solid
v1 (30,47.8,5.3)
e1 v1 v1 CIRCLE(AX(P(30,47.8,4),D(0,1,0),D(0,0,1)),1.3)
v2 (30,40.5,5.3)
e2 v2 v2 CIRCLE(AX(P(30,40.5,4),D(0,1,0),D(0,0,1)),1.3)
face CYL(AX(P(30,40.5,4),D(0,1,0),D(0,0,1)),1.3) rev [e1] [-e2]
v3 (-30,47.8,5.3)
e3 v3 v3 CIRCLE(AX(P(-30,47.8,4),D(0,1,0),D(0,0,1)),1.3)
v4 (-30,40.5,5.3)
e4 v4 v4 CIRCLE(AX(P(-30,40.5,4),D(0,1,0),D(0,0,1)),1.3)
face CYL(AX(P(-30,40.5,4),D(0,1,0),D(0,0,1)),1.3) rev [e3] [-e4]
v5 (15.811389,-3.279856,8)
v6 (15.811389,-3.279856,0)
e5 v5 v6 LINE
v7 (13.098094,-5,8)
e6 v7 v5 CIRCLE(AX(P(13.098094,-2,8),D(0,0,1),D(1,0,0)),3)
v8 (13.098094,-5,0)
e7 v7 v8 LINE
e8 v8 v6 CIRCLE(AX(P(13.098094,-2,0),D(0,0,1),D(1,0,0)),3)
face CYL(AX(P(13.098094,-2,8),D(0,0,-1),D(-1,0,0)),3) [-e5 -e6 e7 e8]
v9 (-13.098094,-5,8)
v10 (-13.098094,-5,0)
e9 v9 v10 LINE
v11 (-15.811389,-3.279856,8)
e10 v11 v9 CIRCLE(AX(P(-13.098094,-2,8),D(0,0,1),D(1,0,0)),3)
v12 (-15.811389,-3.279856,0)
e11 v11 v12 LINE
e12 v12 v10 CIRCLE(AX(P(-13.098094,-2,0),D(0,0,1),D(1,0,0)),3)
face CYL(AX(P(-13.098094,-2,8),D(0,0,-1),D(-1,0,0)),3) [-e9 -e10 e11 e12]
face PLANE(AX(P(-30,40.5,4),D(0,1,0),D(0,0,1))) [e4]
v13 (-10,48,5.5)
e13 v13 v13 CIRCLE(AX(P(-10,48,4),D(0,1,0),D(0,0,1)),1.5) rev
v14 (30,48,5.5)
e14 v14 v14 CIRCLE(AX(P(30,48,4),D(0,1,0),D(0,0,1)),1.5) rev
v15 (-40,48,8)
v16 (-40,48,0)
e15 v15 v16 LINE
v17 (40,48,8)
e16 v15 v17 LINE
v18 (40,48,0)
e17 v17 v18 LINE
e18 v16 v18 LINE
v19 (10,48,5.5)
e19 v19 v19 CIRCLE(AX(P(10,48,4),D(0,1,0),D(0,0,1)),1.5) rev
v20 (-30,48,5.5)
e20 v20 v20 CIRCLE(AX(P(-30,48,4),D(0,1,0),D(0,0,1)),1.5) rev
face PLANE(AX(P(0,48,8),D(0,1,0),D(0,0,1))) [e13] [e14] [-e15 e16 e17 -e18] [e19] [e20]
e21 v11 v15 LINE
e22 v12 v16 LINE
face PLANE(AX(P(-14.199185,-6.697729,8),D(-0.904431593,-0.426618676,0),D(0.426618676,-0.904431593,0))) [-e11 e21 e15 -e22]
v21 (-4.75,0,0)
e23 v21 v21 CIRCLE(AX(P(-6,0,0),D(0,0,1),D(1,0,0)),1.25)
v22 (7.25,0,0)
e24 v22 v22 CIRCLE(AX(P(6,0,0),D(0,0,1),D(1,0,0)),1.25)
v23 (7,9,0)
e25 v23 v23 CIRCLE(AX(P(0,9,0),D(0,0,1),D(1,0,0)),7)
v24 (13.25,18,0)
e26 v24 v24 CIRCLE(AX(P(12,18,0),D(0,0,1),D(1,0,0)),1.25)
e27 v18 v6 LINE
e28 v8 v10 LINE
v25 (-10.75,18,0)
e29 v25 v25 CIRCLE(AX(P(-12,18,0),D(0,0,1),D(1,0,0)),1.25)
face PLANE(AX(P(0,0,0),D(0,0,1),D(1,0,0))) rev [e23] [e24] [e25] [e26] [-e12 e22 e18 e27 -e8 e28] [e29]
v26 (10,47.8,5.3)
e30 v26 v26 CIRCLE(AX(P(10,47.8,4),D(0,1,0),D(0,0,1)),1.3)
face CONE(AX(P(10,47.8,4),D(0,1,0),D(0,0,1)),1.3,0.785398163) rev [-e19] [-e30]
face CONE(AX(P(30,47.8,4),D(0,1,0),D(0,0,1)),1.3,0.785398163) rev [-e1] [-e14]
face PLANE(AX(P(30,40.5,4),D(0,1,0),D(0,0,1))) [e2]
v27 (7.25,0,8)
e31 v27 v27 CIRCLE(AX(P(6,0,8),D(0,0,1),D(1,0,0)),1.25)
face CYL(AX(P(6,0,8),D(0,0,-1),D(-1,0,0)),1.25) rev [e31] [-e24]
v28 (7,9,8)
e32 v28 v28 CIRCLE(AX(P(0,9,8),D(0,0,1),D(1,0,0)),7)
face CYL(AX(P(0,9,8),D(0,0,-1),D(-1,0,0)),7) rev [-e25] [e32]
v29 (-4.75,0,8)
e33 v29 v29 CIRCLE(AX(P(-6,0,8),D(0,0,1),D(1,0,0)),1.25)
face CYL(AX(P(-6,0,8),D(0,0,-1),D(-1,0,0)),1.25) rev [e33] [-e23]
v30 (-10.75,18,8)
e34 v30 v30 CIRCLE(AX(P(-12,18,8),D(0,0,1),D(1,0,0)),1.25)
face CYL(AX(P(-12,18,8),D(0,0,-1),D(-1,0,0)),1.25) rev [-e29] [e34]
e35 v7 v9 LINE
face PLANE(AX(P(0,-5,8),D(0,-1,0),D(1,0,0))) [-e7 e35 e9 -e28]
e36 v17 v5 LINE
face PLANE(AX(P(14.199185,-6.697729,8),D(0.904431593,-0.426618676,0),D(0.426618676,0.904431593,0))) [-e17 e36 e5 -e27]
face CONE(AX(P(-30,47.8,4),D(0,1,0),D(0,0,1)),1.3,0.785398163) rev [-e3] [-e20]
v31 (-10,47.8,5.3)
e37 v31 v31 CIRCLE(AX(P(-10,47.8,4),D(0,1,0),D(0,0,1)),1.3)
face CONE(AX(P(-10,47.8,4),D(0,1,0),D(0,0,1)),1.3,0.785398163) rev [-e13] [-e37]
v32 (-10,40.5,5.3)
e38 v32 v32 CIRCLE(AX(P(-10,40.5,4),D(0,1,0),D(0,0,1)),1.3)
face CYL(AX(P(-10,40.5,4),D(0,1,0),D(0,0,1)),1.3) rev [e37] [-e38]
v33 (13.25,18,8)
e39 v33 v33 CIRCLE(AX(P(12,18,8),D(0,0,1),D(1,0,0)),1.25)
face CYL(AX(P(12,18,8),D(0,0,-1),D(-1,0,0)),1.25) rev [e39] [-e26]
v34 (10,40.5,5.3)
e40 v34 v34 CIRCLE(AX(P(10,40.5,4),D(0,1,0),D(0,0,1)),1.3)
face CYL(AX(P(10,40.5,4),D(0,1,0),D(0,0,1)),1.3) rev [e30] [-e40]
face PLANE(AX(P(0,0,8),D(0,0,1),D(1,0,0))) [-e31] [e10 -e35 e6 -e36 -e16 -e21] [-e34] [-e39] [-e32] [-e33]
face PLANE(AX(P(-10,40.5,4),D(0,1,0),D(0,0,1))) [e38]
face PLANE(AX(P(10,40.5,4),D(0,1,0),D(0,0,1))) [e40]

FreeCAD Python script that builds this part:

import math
import FreeCAD as App
import Part
import Sketcher
from FreeCAD import Vector
Q = App.Units.Quantity


def edges_at(feature, points):
    """Names of the edges that pass closest to the given points."""
    edges = feature.Shape.Edges
    near = lambda p: min(range(len(edges)), key=lambda i: edges[i].distToShape(Part.Vertex(*p))[0])
    return sorted({f"Edge{near(p) + 1}" for p in points})

doc = App.newDocument("Part")
body = doc.addObject("PartDesign::Body", "Body")

sketch1 = body.newObject("Sketcher::SketchObject", "Sketch")
sketch1.AttachmentSupport = (doc.getObject("XY_Plane"), [""])
sketch1.MapMode = "FlatFace"
sketch1.addGeometry(Part.ArcOfCircle(Part.Circle(Vector(-13.098094, -2, 0), Vector(0, 0, 1), 3), math.radians(-154.746837), math.radians(-90)), False)
sketch1.addGeometry(Part.LineSegment(Vector(-13.098094, -5, 0), Vector(13.098094, -5, 0)), False)
sketch1.addGeometry(Part.ArcOfCircle(Part.Circle(Vector(13.098094, -2, 0), Vector(0, 0, 1), 3), math.radians(-90), math.radians(-25.253163)), False)
sketch1.addGeometry(Part.LineSegment(Vector(15.811389, -3.279856, 0), Vector(40, 48, 0)), False)
sketch1.addGeometry(Part.LineSegment(Vector(40, 48, 0), Vector(-40, 48, 0)), False)
sketch1.addGeometry(Part.LineSegment(Vector(-40, 48, 0), Vector(-15.811389, -3.279856, 0)), False)
sketch1.addGeometry(Part.Circle(Vector(6, 0, 0), Vector(0, 0, 1), 1.25), False)
sketch1.addGeometry(Part.Circle(Vector(-6, 0, 0), Vector(0, 0, 1), 1.25), False)
sketch1.addGeometry(Part.Circle(Vector(12, 18, 0), Vector(0, 0, 1), 1.25), False)
sketch1.addGeometry(Part.Circle(Vector(0, 9, 0), Vector(0, 0, 1), 7), False)
sketch1.addGeometry(Part.Circle(Vector(-12, 18, 0), Vector(0, 0, 1), 1.25), False)
sketch1.addConstraint(Sketcher.Constraint("Tangent", 0, 2, 1, 1))
sketch1.addConstraint(Sketcher.Constraint("Tangent", 1, 2, 2, 1))
sketch1.addConstraint(Sketcher.Constraint("Tangent", 2, 2, 3, 1))
sketch1.addConstraint(Sketcher.Constraint("Coincident", 3, 2, 4, 1))
sketch1.addConstraint(Sketcher.Constraint("Coincident", 4, 2, 5, 1))
sketch1.addConstraint(Sketcher.Constraint("Tangent", 5, 2, 0, 1))
sketch1.addConstraint(Sketcher.Constraint("Horizontal", 1))
sketch1.addConstraint(Sketcher.Constraint("Horizontal", 4))
sketch1.addConstraint(Sketcher.Constraint("Equal", 0, 2))
sketch1.addConstraint(Sketcher.Constraint("Equal", 6, 7))
sketch1.addConstraint(Sketcher.Constraint("Equal", 7, 8))
sketch1.addConstraint(Sketcher.Constraint("Equal", 8, 10))
sketch1.addConstraint(Sketcher.Constraint("Symmetric", 6, 3, 7, 3, -1, 1))
sketch1.addConstraint(Sketcher.Constraint("Symmetric", 8, 3, 10, 3, -2))
sketch1.addConstraint(Sketcher.Constraint("Symmetric", 2, 2, 5, 2, -2))
sketch1.addConstraint(Sketcher.Constraint("PointOnObject", 6, 3, -1))
sketch1.addConstraint(Sketcher.Constraint("PointOnObject", 9, 3, -2))
sketch1.addConstraint(Sketcher.Constraint("Diameter", 9, Q("14 mm")))
sketch1.addConstraint(Sketcher.Constraint("Radius", 0, Q("3 mm")))
sketch1.addConstraint(Sketcher.Constraint("Diameter", 6, Q("2.5 mm")))
sketch1.addConstraint(Sketcher.Constraint("DistanceX", 4, 2, 4, 1, Q("80 mm")))
sketch1.addConstraint(Sketcher.Constraint("DistanceY", 0, 3, -1, 1, Q("2 mm")))
sketch1.addConstraint(Sketcher.Constraint("DistanceX", -1, 1, 6, 3, Q("6 mm")))
sketch1.addConstraint(Sketcher.Constraint("DistanceX", -1, 1, 8, 3, Q("12 mm")))
sketch1.addConstraint(Sketcher.Constraint("DistanceY", -1, 1, 8, 3, Q("18 mm")))
sketch1.addConstraint(Sketcher.Constraint("DistanceY", -1, 1, 9, 3, Q("9 mm")))
sketch1.addConstraint(Sketcher.Constraint("DistanceY", -1, 1, 3, 2, Q("48 mm")))
sketch1.addConstraint(Sketcher.Constraint("DistanceX", 1, 1, 1, 2, Q("26.196188 mm")))
pad1 = body.newObject("PartDesign::Pad", "Pad")
pad1.Profile = sketch1
pad1.Length = 8

sketch2 = body.newObject("Sketcher::SketchObject", "Sketch001")
sketch2.AttachmentSupport = (doc.getObject("XZ_Plane"), [""])
sketch2.MapMode = "FlatFace"
sketch2.AttachmentOffset = App.Placement(Vector(0, 0, -48), App.Rotation())
sketch2.addGeometry(Part.Circle(Vector(-10, 4, 0), Vector(0, 0, 1), 1.3), False)
sketch2.addGeometry(Part.Circle(Vector(-30, 4, 0), Vector(0, 0, 1), 1.3), False)
sketch2.addGeometry(Part.Circle(Vector(10, 4, 0), Vector(0, 0, 1), 1.3), False)
sketch2.addGeometry(Part.Circle(Vector(30, 4, 0), Vector(0, 0, 1), 1.3), False)
sketch2.addConstraint(Sketcher.Constraint("Equal", 0, 1))
sketch2.addConstraint(Sketcher.Constraint("Equal", 1, 2))
sketch2.addConstraint(Sketcher.Constraint("Equal", 2, 3))
sketch2.addConstraint(Sketcher.Constraint("Symmetric", 0, 3, 2, 3, -2))
sketch2.addConstraint(Sketcher.Constraint("Symmetric", 1, 3, 3, 3, -2))
sketch2.addConstraint(Sketcher.Constraint("Horizontal", 0, 3, 1, 3))
sketch2.addConstraint(Sketcher.Constraint("Diameter", 0, Q("2.6 mm")))
sketch2.addConstraint(Sketcher.Constraint("DistanceX", 0, 3, -1, 1, Q("10 mm")))
sketch2.addConstraint(Sketcher.Constraint("DistanceY", -1, 1, 0, 3, Q("4 mm")))
sketch2.addConstraint(Sketcher.Constraint("DistanceX", 1, 3, -1, 1, Q("30 mm")))
pocket1 = body.newObject("PartDesign::Pocket", "Pocket")
pocket1.Profile = sketch2
pocket1.Length = 7.5
pocket1.Reversed = True
doc.recompute()

chamfer = body.newObject("PartDesign::Chamfer", "Chamfer")
chamfer.Base = (pocket1, edges_at(pocket1, [
    (30, 48, 2.7),
    (10, 48, 2.7),
    (-30, 48, 2.7),
    (-10, 48, 2.7),
]))
chamfer.Size = 0.2

doc.recompute()
